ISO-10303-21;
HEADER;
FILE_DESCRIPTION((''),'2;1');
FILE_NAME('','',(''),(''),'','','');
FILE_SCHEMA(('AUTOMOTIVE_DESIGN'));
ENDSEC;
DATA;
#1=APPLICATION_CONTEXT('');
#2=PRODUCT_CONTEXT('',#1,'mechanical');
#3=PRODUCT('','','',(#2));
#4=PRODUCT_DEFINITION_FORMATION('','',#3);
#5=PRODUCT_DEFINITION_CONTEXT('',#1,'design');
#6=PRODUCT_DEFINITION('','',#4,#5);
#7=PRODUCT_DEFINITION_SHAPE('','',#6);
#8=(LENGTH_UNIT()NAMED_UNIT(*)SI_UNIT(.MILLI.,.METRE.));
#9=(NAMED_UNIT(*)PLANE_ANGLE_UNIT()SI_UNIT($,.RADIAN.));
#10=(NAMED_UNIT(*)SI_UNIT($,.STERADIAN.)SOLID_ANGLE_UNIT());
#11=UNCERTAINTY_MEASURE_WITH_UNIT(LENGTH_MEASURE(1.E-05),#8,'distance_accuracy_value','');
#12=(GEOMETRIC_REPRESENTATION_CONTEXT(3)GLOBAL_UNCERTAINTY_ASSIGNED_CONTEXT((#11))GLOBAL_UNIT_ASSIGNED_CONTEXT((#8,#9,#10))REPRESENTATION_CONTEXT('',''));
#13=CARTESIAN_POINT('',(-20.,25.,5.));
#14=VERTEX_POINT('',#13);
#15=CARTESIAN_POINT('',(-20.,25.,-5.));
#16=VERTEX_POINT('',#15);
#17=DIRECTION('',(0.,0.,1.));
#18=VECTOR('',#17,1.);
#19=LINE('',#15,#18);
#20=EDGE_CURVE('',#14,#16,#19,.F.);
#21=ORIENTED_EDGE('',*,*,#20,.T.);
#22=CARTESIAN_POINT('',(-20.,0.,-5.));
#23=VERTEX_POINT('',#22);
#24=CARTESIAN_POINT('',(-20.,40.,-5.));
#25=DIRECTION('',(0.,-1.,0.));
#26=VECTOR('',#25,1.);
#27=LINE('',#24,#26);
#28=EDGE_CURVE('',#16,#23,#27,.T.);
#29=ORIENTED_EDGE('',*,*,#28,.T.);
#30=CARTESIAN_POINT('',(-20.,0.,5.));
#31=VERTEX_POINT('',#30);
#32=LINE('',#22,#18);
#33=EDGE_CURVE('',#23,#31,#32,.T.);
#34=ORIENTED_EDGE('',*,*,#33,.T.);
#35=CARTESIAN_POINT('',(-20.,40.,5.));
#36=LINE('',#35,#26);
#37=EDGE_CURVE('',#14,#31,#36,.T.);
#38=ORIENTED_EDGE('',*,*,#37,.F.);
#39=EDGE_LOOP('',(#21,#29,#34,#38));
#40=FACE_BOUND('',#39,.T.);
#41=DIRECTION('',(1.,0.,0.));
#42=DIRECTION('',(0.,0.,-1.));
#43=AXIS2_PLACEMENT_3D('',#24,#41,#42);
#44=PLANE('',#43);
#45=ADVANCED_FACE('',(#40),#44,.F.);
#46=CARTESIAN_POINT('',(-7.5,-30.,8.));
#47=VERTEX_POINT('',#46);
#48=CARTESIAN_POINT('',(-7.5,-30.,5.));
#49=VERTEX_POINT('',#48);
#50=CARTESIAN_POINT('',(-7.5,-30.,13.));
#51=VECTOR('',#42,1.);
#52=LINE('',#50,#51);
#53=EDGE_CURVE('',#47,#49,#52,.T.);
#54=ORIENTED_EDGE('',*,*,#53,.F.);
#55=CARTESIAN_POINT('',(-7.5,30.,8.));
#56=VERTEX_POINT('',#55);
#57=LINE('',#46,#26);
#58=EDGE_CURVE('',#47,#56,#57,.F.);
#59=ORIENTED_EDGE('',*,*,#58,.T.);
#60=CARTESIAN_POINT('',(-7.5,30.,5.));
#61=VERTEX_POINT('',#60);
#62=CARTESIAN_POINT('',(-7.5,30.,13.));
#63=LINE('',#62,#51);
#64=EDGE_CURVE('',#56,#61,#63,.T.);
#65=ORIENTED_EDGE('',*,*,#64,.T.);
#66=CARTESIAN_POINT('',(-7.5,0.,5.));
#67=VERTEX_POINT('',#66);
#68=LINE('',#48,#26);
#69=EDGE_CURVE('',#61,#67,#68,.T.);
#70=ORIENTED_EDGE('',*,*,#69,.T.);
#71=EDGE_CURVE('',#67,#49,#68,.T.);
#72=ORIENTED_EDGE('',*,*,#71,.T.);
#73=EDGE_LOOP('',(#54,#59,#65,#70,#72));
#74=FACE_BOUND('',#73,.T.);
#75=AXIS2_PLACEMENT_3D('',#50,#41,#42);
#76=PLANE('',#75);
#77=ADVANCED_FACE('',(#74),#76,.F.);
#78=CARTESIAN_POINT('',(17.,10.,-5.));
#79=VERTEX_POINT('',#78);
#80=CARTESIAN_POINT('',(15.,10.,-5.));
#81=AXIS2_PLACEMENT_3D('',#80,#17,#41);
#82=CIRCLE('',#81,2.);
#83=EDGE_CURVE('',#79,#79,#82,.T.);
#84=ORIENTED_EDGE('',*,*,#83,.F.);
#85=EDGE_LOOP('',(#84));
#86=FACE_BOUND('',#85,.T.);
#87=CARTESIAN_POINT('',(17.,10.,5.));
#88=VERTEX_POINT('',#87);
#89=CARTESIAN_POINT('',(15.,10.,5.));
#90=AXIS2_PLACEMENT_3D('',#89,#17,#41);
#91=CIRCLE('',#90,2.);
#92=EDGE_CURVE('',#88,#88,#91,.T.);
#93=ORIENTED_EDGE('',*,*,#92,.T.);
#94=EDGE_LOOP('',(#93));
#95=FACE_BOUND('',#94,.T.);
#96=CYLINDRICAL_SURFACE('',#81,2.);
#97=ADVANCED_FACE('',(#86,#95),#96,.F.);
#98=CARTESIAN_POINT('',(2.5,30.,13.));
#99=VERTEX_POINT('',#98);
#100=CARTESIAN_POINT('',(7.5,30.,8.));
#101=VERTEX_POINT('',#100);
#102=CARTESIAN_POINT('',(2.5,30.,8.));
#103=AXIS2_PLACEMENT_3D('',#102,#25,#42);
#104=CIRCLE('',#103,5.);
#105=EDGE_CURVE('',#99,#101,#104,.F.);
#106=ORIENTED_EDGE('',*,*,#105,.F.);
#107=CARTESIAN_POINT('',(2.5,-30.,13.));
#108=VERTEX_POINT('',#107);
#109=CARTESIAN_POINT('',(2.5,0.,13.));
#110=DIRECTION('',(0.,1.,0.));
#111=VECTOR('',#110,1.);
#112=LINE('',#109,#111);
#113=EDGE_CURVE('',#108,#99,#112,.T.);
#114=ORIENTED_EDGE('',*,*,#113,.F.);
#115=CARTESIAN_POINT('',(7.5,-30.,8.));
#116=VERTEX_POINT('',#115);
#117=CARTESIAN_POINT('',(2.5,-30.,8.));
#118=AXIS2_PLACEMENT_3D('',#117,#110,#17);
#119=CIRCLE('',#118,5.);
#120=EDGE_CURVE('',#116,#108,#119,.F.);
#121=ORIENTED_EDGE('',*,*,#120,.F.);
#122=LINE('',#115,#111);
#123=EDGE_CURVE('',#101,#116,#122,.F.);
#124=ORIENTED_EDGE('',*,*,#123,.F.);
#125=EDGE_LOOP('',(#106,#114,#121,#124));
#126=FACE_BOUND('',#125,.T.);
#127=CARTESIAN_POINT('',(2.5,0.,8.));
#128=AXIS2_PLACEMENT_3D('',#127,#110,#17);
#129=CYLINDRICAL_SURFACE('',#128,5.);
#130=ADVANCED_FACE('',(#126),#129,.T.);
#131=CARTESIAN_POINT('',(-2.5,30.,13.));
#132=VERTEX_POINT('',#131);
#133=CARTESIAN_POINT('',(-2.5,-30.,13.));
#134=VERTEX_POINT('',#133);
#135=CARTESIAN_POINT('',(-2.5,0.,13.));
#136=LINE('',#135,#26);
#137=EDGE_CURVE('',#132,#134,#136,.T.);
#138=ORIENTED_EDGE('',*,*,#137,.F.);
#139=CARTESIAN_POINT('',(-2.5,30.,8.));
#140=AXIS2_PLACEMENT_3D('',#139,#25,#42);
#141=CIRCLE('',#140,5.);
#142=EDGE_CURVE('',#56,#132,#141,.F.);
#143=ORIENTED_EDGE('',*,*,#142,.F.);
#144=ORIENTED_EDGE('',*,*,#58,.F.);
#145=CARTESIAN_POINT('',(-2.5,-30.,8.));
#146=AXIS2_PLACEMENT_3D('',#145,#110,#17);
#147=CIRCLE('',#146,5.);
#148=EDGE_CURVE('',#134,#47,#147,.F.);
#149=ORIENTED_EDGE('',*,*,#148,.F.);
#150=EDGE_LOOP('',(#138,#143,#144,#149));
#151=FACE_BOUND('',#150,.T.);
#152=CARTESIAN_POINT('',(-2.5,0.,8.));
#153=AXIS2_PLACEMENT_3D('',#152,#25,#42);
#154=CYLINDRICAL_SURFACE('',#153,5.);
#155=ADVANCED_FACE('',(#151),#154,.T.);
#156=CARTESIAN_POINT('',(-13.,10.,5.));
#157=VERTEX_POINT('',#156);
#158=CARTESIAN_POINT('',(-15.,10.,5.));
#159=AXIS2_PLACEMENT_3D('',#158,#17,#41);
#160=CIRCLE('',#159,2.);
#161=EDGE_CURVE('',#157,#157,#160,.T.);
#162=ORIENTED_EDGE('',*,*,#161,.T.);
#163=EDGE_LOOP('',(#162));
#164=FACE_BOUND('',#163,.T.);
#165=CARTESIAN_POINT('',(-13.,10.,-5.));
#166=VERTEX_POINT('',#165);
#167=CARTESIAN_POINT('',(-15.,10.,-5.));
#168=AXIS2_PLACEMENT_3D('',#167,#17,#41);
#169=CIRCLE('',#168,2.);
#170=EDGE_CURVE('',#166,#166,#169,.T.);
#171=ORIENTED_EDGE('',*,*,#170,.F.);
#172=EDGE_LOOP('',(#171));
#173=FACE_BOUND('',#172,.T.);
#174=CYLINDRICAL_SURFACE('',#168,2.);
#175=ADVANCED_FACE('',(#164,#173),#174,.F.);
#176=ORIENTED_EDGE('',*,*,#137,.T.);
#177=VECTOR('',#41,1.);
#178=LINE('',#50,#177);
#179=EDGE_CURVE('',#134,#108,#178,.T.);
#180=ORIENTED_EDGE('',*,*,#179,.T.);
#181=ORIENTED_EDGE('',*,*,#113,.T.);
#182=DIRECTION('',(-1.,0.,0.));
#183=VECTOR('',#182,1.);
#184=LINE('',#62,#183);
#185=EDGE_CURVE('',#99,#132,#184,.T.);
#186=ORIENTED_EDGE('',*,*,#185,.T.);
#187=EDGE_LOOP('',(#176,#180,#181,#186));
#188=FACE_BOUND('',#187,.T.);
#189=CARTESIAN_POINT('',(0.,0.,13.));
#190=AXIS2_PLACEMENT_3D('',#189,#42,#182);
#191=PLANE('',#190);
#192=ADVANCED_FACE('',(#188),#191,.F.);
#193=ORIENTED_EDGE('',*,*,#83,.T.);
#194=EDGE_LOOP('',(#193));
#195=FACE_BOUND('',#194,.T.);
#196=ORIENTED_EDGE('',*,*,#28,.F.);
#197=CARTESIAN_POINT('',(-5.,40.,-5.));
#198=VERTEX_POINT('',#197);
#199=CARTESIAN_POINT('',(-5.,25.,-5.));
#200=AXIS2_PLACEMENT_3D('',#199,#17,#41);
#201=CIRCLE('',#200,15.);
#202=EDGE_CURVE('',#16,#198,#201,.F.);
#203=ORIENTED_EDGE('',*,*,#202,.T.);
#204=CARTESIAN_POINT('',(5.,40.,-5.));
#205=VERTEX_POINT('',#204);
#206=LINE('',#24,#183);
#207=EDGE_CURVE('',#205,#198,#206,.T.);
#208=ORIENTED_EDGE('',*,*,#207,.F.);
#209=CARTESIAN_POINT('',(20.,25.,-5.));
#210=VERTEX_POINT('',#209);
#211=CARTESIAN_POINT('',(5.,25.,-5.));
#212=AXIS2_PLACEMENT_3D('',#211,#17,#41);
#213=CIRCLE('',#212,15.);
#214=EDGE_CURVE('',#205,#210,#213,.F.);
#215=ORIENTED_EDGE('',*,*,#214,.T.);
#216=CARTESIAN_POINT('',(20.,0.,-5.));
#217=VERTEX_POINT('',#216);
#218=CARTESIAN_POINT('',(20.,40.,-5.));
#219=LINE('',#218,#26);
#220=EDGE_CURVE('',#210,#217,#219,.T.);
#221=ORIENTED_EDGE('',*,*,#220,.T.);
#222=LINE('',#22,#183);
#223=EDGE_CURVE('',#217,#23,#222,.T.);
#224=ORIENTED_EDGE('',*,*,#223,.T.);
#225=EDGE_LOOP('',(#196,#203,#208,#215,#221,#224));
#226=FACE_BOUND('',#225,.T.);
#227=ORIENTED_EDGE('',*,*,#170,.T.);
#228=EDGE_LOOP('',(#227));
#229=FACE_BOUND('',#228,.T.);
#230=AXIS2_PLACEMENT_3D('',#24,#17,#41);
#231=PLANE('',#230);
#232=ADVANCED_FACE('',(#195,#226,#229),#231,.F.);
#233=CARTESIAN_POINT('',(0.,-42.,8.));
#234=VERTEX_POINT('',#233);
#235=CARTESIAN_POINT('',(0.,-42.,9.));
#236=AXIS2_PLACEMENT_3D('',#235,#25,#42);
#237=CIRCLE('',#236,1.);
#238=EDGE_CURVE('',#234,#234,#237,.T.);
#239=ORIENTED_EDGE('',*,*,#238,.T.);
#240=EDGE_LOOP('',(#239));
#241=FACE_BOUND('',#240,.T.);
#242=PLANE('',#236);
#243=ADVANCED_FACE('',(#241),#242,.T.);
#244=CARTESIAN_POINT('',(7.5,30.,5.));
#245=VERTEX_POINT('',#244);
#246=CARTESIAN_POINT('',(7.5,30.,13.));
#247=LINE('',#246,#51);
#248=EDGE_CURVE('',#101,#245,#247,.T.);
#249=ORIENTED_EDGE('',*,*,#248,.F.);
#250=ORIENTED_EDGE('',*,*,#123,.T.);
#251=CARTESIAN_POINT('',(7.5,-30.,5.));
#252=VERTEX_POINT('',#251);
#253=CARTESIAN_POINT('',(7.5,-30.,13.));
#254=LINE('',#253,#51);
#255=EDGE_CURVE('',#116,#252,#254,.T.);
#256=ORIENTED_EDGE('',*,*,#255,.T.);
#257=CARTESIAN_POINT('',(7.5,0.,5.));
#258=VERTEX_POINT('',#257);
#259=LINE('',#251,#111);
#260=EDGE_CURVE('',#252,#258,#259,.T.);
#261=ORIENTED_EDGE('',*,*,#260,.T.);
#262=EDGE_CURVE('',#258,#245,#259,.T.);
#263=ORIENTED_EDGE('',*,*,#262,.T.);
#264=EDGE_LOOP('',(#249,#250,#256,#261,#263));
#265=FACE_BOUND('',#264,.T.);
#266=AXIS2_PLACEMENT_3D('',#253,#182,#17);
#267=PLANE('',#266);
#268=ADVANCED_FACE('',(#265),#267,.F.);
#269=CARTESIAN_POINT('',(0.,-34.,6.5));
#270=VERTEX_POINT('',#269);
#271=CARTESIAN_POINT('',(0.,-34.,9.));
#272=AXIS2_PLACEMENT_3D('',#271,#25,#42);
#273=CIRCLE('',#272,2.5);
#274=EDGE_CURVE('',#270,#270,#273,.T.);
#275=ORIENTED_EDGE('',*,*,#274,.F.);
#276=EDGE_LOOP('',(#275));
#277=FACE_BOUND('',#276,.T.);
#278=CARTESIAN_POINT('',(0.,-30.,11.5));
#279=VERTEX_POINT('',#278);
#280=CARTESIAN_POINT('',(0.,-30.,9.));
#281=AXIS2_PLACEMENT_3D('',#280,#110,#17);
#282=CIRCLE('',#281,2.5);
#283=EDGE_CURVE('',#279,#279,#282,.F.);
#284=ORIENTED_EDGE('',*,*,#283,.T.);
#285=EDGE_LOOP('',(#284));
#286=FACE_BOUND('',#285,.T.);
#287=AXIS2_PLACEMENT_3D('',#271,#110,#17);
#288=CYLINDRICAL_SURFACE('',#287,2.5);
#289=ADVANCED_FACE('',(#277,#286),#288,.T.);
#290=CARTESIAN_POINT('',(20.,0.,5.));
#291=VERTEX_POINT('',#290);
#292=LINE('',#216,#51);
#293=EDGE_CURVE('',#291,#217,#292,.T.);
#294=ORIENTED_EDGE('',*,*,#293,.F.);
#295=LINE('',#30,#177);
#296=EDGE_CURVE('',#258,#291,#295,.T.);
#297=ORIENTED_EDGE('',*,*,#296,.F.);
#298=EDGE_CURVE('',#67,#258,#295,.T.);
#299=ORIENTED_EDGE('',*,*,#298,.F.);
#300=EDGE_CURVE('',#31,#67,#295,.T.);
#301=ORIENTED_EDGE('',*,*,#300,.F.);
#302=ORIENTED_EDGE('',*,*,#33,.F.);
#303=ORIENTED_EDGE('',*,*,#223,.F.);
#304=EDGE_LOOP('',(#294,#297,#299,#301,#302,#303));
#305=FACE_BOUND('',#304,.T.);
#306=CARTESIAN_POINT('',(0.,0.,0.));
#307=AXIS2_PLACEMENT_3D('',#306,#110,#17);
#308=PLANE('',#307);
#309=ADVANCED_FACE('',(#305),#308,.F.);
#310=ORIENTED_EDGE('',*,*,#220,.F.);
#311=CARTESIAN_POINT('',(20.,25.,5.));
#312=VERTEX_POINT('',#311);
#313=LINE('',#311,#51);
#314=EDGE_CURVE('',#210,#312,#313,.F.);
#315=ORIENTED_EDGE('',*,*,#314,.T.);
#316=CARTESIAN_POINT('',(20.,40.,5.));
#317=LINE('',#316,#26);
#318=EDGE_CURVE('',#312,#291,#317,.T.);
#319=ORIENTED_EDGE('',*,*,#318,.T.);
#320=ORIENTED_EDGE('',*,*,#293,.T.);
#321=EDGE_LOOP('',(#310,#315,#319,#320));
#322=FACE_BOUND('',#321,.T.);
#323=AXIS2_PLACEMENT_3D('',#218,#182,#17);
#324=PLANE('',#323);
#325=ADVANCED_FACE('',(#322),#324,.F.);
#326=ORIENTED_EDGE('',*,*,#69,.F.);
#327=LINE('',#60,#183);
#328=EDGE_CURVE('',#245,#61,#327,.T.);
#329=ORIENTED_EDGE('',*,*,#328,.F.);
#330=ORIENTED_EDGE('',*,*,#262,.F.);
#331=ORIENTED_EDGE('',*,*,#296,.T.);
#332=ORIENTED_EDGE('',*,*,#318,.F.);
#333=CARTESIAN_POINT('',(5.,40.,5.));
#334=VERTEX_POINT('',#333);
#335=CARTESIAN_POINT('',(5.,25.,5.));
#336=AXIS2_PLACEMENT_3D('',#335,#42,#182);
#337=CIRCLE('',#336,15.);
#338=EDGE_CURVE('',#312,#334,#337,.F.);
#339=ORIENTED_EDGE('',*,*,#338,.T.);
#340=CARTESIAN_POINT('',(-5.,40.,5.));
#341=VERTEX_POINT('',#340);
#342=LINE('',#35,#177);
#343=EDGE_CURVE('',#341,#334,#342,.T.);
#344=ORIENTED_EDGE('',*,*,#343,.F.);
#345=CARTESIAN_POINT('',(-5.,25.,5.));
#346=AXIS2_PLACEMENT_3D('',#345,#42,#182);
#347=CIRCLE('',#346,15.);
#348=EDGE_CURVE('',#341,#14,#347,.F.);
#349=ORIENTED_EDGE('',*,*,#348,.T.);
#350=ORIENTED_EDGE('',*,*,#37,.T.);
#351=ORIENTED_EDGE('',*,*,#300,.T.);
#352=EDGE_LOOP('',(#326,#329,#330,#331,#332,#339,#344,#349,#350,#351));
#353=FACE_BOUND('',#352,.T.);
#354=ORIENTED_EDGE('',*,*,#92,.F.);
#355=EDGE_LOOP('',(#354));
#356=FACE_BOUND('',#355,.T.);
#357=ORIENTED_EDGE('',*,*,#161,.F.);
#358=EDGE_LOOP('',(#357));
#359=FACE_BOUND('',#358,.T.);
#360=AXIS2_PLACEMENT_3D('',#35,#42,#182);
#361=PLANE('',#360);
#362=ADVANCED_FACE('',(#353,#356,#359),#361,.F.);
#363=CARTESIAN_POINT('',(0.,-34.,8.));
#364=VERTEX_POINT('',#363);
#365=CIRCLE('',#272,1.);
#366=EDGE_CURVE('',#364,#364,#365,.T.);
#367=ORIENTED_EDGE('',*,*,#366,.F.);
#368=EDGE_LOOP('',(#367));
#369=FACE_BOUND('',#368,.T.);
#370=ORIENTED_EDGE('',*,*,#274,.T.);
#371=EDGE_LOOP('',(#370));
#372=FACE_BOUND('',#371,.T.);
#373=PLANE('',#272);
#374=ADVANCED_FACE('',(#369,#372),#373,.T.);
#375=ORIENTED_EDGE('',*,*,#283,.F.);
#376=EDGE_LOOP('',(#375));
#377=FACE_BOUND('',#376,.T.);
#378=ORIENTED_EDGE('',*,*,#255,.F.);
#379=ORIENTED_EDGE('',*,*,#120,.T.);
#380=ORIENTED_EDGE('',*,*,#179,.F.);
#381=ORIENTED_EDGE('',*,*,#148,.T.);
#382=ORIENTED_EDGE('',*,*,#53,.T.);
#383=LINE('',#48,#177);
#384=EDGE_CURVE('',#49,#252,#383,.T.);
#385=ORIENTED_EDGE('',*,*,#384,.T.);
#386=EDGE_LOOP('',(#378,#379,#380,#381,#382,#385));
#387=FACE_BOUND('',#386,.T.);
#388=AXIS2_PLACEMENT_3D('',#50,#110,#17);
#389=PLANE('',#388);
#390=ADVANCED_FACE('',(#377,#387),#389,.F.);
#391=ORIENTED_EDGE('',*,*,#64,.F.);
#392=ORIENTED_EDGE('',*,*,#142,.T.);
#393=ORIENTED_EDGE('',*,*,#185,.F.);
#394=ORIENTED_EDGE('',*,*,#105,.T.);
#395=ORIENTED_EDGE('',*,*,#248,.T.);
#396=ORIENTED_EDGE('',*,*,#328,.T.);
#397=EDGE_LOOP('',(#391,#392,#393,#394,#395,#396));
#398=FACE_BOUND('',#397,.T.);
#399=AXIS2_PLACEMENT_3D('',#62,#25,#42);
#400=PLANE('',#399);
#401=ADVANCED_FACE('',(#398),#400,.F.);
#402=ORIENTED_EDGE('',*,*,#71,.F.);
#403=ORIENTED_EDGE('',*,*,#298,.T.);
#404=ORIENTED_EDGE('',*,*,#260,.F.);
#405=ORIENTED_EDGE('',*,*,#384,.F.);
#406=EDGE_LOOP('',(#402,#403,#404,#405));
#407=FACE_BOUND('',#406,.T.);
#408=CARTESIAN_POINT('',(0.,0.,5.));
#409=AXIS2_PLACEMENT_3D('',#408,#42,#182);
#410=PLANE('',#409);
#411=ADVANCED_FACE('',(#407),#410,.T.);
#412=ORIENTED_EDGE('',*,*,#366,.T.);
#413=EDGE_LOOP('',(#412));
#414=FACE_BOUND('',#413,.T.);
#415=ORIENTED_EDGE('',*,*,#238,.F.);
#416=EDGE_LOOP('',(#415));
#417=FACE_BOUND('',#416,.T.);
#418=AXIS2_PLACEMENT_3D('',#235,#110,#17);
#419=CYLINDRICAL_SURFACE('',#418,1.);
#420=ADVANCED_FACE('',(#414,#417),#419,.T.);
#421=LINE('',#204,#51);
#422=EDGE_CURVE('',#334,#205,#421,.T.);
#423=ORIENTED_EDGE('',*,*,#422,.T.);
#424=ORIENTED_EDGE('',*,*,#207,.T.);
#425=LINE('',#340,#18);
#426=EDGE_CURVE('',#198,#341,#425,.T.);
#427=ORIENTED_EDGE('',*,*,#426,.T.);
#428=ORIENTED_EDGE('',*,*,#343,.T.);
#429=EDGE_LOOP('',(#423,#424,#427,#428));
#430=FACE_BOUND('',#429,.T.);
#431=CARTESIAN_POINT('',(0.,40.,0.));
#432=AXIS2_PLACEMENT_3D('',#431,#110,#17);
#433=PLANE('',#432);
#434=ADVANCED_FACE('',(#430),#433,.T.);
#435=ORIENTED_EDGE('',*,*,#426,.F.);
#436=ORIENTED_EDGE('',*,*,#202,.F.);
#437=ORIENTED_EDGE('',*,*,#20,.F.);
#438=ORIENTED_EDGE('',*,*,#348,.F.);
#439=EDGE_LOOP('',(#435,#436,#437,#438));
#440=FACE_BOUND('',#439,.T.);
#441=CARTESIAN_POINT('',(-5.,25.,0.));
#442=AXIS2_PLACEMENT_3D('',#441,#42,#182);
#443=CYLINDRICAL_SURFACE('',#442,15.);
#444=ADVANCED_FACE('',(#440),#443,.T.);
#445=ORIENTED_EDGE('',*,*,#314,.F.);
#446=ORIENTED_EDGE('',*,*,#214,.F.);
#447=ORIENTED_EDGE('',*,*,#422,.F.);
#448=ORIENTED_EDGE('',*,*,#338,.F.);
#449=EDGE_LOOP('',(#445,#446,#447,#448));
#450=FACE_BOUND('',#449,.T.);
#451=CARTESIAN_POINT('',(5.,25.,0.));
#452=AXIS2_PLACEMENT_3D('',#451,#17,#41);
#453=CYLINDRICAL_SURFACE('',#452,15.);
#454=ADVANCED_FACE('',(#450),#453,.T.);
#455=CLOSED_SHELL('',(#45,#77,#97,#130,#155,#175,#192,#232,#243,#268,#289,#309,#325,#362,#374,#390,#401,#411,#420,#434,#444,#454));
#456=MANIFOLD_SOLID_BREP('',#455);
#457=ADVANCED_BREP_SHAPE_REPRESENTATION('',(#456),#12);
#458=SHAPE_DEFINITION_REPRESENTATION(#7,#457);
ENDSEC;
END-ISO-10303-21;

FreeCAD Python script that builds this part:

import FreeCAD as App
import Part
import Sketcher
Q = App.Units.Quantity


def edges_at(feature, points):
    """Names of the edges that pass closest to the given points."""
    edges = feature.Shape.Edges
    near = lambda p: min(range(len(edges)), key=lambda i: edges[i].distToShape(Part.Vertex(*p))[0])
    return sorted({f"Edge{near(p) + 1}" for p in points})


def add_polygon(sketch, points):
    """Adds a closed chain of lines whose ends are joined by coincident constraints."""
    first, n = sketch.GeometryCount, len(points)
    for a, b in zip(points, points[1:] + points[:1]):
        sketch.addGeometry(Part.LineSegment(App.Vector(*a, 0), App.Vector(*b, 0)), False)
    for i in range(n):
        sketch.addConstraint(Sketcher.Constraint("Coincident", first + i, 2, first + (i + 1) % n, 1))

doc = App.newDocument("Part")
body = doc.addObject("PartDesign::Body", "Body")

# Sketch on XZ plane
sketch1 = body.newObject("Sketcher::SketchObject", "Sketch")
sketch1.AttachmentSupport = (doc.getObject("XZ_Plane"), [""])
sketch1.MapMode = "FlatFace"
add_polygon(sketch1, [(-20, -5), (-20, 5), (20, 5), (20, -5)])  # lines 0-3
sketch1.addConstraint([
    Sketcher.Constraint("Vertical", 0),
    Sketcher.Constraint("Horizontal", 1),
    Sketcher.Constraint("Vertical", 2),
    Sketcher.Constraint("Horizontal", 3),
    Sketcher.Constraint("Symmetric", 0, 2, 2, 2, -1, 1),
    Sketcher.Constraint("DistanceX", 1, 1, 1, 2, Q("40 mm")),
    Sketcher.Constraint("DistanceY", 0, 1, 0, 2, Q("10 mm")),
])
pad1 = body.newObject("PartDesign::Pad", "Pad")
pad1.Profile = sketch1
pad1.Length = 40
pad1.Reversed = True
doc.recompute()

fillet = body.newObject("PartDesign::Fillet", "Fillet")
fillet.Base = (pad1, edges_at(pad1, [(-20, 40, 0), (20, 40, 0)]))
fillet.Radius = 15

# Sketch on XY plane
sketch2 = body.newObject("Sketcher::SketchObject", "Sketch001")
sketch2.AttachmentSupport = (doc.getObject("XY_Plane"), [""])
sketch2.MapMode = "FlatFace"
sketch2.AttachmentOffset = App.Placement(App.Vector(0, 0, 5), App.Rotation())
sketch2.addGeometry([
    Part.Circle(App.Vector(15, 10, 0), App.Vector(0, 0, 1), 2),
    Part.Circle(App.Vector(-15, 10, 0), App.Vector(0, 0, 1), 2),
], False)
sketch2.addConstraint([
    Sketcher.Constraint("Equal", 0, 1),
    Sketcher.Constraint("Symmetric", 0, 3, 1, 3, -2),
    Sketcher.Constraint("Diameter", 0, Q("4 mm")),
    Sketcher.Constraint("DistanceX", -1, 1, 0, 3, Q("15 mm")),
    Sketcher.Constraint("DistanceY", -1, 1, 0, 3, Q("10 mm")),
])
pocket1 = body.newObject("PartDesign::Pocket", "Pocket")
pocket1.Profile = sketch2
pocket1.Length = 10

# Sketch on XY plane
sketch3 = body.newObject("Sketcher::SketchObject", "Sketch002")
sketch3.AttachmentSupport = (doc.getObject("XY_Plane"), [""])
sketch3.MapMode = "FlatFace"
sketch3.AttachmentOffset = App.Placement(App.Vector(0, 0, 5), App.Rotation())
add_polygon(sketch3, [(-8, 30), (-8, -30), (8, -30), (8, 30)])  # lines 0-3
sketch3.addConstraint([
    Sketcher.Constraint("Vertical", 0),
    Sketcher.Constraint("Horizontal", 1),
    Sketcher.Constraint("Vertical", 2),
    Sketcher.Constraint("Horizontal", 3),
    Sketcher.Constraint("Symmetric", 0, 2, 2, 2, -1, 1),
    Sketcher.Constraint("DistanceX", 1, 1, 1, 2, Q("15 mm")),
    Sketcher.Constraint("DistanceY", 0, 2, 0, 1, Q("60 mm")),
])
pad2 = body.newObject("PartDesign::Pad", "Pad001")
pad2.Profile = sketch3
pad2.Length = 8

# Sketch on XZ plane
sketch4 = body.newObject("Sketcher::SketchObject", "Sketch003")
sketch4.AttachmentSupport = (doc.getObject("XZ_Plane"), [""])
sketch4.MapMode = "FlatFace"
sketch4.AttachmentOffset = App.Placement(App.Vector(0, 0, 30), App.Rotation())
sketch4.addGeometry(Part.Circle(App.Vector(0, 9, 0), App.Vector(0, 0, 1), 2.5), False)
sketch4.addConstraint([
    Sketcher.Constraint("PointOnObject", 0, 3, -2),
    Sketcher.Constraint("Diameter", 0, Q("5 mm")),
    Sketcher.Constraint("DistanceY", -1, 1, 0, 3, Q("9 mm")),
])
pad3 = body.newObject("PartDesign::Pad", "Pad002")
pad3.Profile = sketch4
pad3.Length = 4

# Sketch on XZ plane
sketch5 = body.newObject("Sketcher::SketchObject", "Sketch004")
sketch5.AttachmentSupport = (doc.getObject("XZ_Plane"), [""])
sketch5.MapMode = "FlatFace"
sketch5.AttachmentOffset = App.Placement(App.Vector(0, 0, 34), App.Rotation())
sketch5.addGeometry(Part.Circle(App.Vector(0, 9, 0), App.Vector(0, 0, 1), 1), False)
sketch5.addConstraint([
    Sketcher.Constraint("PointOnObject", 0, 3, -2),
    Sketcher.Constraint("Diameter", 0, Q("2 mm")),
    Sketcher.Constraint("DistanceY", -1, 1, 0, 3, Q("9 mm")),
])
pad4 = body.newObject("PartDesign::Pad", "Pad003")
pad4.Profile = sketch5
pad4.Length = 8
doc.recompute()

fillet2 = body.newObject("PartDesign::Fillet", "Fillet001")
fillet2.Base = (pad4, edges_at(pad4, [(7.5, 0, 13), (-7.5, 0, 13)]))
fillet2.Radius = 5

doc.recompute()
